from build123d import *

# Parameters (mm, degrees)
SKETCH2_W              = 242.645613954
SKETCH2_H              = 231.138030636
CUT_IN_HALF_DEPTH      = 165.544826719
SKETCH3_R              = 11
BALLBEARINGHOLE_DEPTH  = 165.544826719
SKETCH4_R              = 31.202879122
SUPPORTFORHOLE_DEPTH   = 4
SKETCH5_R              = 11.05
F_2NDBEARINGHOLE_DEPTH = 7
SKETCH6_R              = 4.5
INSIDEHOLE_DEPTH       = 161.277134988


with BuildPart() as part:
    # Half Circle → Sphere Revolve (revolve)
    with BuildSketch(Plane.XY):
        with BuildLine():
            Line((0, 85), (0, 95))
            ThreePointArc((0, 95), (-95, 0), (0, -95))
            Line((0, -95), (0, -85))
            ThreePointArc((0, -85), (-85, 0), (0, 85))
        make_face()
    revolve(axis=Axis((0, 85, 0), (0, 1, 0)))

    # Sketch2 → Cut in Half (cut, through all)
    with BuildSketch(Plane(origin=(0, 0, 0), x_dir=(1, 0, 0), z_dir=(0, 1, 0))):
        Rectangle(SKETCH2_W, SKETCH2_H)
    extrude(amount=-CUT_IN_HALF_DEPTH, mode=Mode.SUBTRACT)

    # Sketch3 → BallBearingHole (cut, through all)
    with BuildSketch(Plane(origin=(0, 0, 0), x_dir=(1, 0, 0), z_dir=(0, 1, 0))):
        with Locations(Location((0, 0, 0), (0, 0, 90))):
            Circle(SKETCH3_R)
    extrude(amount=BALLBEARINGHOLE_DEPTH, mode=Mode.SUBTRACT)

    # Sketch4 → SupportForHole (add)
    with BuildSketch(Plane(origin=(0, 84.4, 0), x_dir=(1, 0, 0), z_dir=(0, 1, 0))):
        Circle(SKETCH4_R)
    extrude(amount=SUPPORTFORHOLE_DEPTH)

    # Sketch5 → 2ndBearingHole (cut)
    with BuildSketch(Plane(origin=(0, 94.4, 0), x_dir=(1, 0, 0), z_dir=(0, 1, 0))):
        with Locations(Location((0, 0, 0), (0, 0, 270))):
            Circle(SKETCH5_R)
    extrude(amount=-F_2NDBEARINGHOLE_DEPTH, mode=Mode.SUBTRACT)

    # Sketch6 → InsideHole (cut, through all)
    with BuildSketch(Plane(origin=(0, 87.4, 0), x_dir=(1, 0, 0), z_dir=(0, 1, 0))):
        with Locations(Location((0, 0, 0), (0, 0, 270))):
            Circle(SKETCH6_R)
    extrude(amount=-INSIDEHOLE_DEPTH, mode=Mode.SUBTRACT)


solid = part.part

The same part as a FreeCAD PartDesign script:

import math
import FreeCAD as App
import Part
import Sketcher
from FreeCAD import Vector

doc = App.newDocument("Part")
body = doc.addObject("PartDesign::Body", "Body")

# Sketch on XY plane
sketch1 = body.newObject("Sketcher::SketchObject", "Sketch")
sketch1.AttachmentSupport = (doc.getObject("XY_Plane"), [""])
sketch1.MapMode = "FlatFace"
sketch1.addGeometry([
    Part.LineSegment(Vector(0, 85, 0), Vector(0, 95, 0)),
    Part.ArcOfCircle(Part.Circle(Vector(0, 0, 0), Vector(0, 0, 1), 95), math.radians(90), math.radians(270)),
    Part.LineSegment(Vector(0, -95, 0), Vector(0, -85, 0)),
    Part.ArcOfCircle(Part.Circle(Vector(0, 0, 0), Vector(0, 0, 1), 85), math.radians(90), math.radians(270)),
], False)
sketch1.addConstraint([
    Sketcher.Constraint("Coincident", 0, 2, 1, 1),
    Sketcher.Constraint("Coincident", 1, 2, 2, 1),
    Sketcher.Constraint("Coincident", 2, 2, 3, 2),
    Sketcher.Constraint("Coincident", 3, 1, 0, 1),
    Sketcher.Constraint("Vertical", 0),
    Sketcher.Constraint("Vertical", 2),
    Sketcher.Constraint("Coincident", 1, 3, -1, 1),
    Sketcher.Constraint("Coincident", 3, 3, -1, 1),
    Sketcher.Constraint("PointOnObject", 0, 2, -2),
    Sketcher.Constraint("PointOnObject", 1, 2, -2),
    Sketcher.Constraint("Radius", 1, 95.0),
    Sketcher.Constraint("Radius", 3, 85.0),
])
revolution = body.newObject("PartDesign::Revolution", "Revolution")
revolution.Profile = sketch1
revolution.ReferenceAxis = (sketch1, ["V_Axis"])
revolution.Angle = 360

# Sketch on XZ plane
sketch2 = body.newObject("Sketcher::SketchObject", "Sketch001")
sketch2.AttachmentSupport = (doc.getObject("XZ_Plane"), [""])
sketch2.MapMode = "FlatFace"
sketch2.addGeometry([
    Part.LineSegment(Vector(-121, -116, 0), Vector(-121, 116, 0)),
    Part.LineSegment(Vector(-121, 116, 0), Vector(121, 116, 0)),
    Part.LineSegment(Vector(121, 116, 0), Vector(121, -116, 0)),
    Part.LineSegment(Vector(121, -116, 0), Vector(-121, -116, 0)),
], False)
sketch2.addConstraint([
    Sketcher.Constraint("Coincident", 0, 2, 1, 1),
    Sketcher.Constraint("Coincident", 1, 2, 2, 1),
    Sketcher.Constraint("Coincident", 2, 2, 3, 1),
    Sketcher.Constraint("Coincident", 3, 2, 0, 1),
    Sketcher.Constraint("Vertical", 0),
    Sketcher.Constraint("Horizontal", 1),
    Sketcher.Constraint("Vertical", 2),
    Sketcher.Constraint("Horizontal", 3),
    Sketcher.Constraint("Symmetric", 0, 2, 2, 2, -1, 1),
    Sketcher.Constraint("DistanceY", 0, 1, 0, 2, 231.138031),
    Sketcher.Constraint("DistanceX", 1, 1, 1, 2, 242.645614),
])
pocket1 = body.newObject("PartDesign::Pocket", "Pocket")
pocket1.Profile = sketch2
pocket1.Type = "ThroughAll"
pocket1.Reversed = True

# Sketch on XZ plane
sketch3 = body.newObject("Sketcher::SketchObject", "Sketch002")
sketch3.AttachmentSupport = (doc.getObject("XZ_Plane"), [""])
sketch3.MapMode = "FlatFace"
sketch3.addGeometry(Part.Circle(Vector(0, 0, 0), Vector(0, 0, 1), 11), False)
sketch3.addConstraint([
    Sketcher.Constraint("Coincident", 0, 3, -1, 1),
    Sketcher.Constraint("Diameter", 0, 22.0),
])
pocket2 = body.newObject("PartDesign::Pocket", "Pocket001")
pocket2.Profile = sketch3
pocket2.Type = "ThroughAll"

# Sketch on XZ plane
sketch4 = body.newObject("Sketcher::SketchObject", "Sketch003")
sketch4.AttachmentSupport = (doc.getObject("XZ_Plane"), [""])
sketch4.MapMode = "FlatFace"
sketch4.AttachmentOffset = App.Placement(Vector(0, 0, -84.4), App.Rotation())
sketch4.addGeometry(Part.Circle(Vector(0, 0, 0), Vector(0, 0, 1), 31), False)
sketch4.addConstraint([
    Sketcher.Constraint("Coincident", 0, 3, -1, 1),
    Sketcher.Constraint("Diameter", 0, 62.405758),
])
pad1 = body.newObject("PartDesign::Pad", "Pad")
pad1.Profile = sketch4
pad1.Length = 4
pad1.Reversed = True

# Sketch on XZ plane
sketch5 = body.newObject("Sketcher::SketchObject", "Sketch004")
sketch5.AttachmentSupport = (doc.getObject("XZ_Plane"), [""])
sketch5.MapMode = "FlatFace"
sketch5.AttachmentOffset = App.Placement(Vector(0, 0, -94.4), App.Rotation())
sketch5.addGeometry(Part.Circle(Vector(0, 0, 0), Vector(0, 0, 1), 11), False)
sketch5.addConstraint([
    Sketcher.Constraint("Coincident", 0, 3, -1, 1),
    Sketcher.Constraint("Diameter", 0, 22.1),
])
pocket3 = body.newObject("PartDesign::Pocket", "Pocket002")
pocket3.Profile = sketch5
pocket3.Length = 7
pocket3.Reversed = True

# Sketch on XZ plane
sketch6 = body.newObject("Sketcher::SketchObject", "Sketch005")
sketch6.AttachmentSupport = (doc.getObject("XZ_Plane"), [""])
sketch6.MapMode = "FlatFace"
sketch6.AttachmentOffset = App.Placement(Vector(0, 0, -87.4), App.Rotation())
sketch6.addGeometry(Part.Circle(Vector(0, 0, 0), Vector(0, 0, 1), 4.5), False)
sketch6.addConstraint([
    Sketcher.Constraint("Coincident", 0, 3, -1, 1),
    Sketcher.Constraint("Diameter", 0, 9.0),
])
pocket4 = body.newObject("PartDesign::Pocket", "Pocket003")
pocket4.Profile = sketch6
pocket4.Type = "ThroughAll"
pocket4.Reversed = True

doc.recompute()
